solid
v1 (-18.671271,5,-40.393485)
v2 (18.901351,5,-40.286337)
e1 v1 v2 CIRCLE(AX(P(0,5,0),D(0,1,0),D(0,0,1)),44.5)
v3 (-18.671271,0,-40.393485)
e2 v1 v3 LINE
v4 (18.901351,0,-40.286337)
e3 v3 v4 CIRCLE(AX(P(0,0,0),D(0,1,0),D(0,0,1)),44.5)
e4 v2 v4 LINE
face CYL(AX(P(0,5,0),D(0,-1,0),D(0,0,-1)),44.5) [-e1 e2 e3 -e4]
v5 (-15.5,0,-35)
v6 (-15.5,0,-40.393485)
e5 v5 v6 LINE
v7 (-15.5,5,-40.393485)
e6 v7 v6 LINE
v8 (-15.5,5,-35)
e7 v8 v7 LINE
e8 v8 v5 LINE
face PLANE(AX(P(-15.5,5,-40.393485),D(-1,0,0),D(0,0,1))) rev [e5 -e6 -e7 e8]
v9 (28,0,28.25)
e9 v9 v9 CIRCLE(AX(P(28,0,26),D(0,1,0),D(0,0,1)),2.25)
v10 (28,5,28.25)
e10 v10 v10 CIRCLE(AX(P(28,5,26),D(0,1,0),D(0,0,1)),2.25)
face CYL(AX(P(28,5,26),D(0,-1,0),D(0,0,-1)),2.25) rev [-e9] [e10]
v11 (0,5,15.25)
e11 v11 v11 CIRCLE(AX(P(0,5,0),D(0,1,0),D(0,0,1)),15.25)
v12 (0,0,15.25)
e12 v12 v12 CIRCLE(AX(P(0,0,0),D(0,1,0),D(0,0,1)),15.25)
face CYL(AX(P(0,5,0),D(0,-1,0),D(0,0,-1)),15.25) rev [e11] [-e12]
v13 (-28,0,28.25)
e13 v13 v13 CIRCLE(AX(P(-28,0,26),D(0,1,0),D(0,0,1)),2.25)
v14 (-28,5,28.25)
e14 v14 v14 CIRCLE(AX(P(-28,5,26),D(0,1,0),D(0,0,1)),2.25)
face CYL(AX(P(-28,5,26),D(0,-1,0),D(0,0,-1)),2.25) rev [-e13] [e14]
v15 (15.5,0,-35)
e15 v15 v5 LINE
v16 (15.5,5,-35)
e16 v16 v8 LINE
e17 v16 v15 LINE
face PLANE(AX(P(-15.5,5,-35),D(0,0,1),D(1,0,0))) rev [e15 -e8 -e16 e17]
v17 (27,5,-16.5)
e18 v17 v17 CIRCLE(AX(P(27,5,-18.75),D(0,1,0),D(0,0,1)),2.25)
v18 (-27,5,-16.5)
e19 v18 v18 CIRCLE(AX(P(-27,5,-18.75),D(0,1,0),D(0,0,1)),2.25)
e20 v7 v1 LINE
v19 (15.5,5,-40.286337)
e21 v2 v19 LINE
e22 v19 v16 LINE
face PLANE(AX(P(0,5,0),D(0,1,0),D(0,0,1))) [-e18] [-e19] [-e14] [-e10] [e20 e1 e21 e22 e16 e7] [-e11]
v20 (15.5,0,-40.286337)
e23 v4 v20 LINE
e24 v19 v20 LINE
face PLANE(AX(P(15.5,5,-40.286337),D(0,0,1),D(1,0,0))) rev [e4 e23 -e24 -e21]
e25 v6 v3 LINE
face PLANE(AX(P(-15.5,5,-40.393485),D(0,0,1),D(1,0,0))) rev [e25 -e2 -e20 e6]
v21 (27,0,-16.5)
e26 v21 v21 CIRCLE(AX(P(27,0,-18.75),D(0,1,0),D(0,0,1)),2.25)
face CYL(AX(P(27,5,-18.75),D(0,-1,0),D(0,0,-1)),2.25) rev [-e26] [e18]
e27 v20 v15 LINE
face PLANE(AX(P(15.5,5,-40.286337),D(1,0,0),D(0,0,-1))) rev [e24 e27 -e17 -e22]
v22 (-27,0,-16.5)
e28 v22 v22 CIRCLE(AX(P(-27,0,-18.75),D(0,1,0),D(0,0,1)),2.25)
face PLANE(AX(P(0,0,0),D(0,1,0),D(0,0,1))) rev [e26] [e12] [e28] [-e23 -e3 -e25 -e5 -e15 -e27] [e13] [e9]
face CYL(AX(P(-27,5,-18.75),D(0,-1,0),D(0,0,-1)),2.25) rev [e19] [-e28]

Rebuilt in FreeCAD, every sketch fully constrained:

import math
import FreeCAD as App
import Part
import Sketcher

doc = App.newDocument("Part")
body = doc.addObject("PartDesign::Body", "Body")

sketch1 = doc.addObject("Sketcher::SketchObject", "Sketch")
body.addObject(sketch1)
sketch1.AttachmentSupport = (doc.XZ_Plane, [""])
sketch1.MapMode = "FlatFace"
sketch1.addGeometry(Part.LineSegment(App.Vector(15.5, -35, 0), App.Vector(-15.5, -35, 0)), False)
sketch1.addGeometry(Part.LineSegment(App.Vector(-15.5, -35, 0), App.Vector(-15.5, -40.4, 0)), False)
sketch1.addGeometry(Part.LineSegment(App.Vector(-15.5, -40.4, 0), App.Vector(-18.7, -40.4, 0)), False)
sketch1.addGeometry(Part.ArcOfCircle(Part.Circle(App.Vector(0, 0, 0), App.Vector(0, 0, 1), 44.5), math.radians(-65), math.radians(245)), False)
sketch1.addGeometry(Part.LineSegment(App.Vector(18.9, -40.3, 0), App.Vector(15.5, -40.3, 0)), False)
sketch1.addGeometry(Part.LineSegment(App.Vector(15.5, -40.3, 0), App.Vector(15.5, -35, 0)), False)
sketch1.addGeometry(Part.Circle(App.Vector(28, 26, 0), App.Vector(0, 0, 1), 2.2), False)
sketch1.addGeometry(Part.Circle(App.Vector(-28, 26, 0), App.Vector(0, 0, 1), 2.2), False)
sketch1.addGeometry(Part.Circle(App.Vector(27, -18.8, 0), App.Vector(0, 0, 1), 2.2), False)
sketch1.addGeometry(Part.Circle(App.Vector(0, 0, 0), App.Vector(0, 0, 1), 15.2), False)
sketch1.addGeometry(Part.Circle(App.Vector(-27, -18.8, 0), App.Vector(0, 0, 1), 2.2), False)
sketch1.addConstraint(Sketcher.Constraint("Coincident", 0, 2, 1, 1))
sketch1.addConstraint(Sketcher.Constraint("Coincident", 1, 2, 2, 1))
sketch1.addConstraint(Sketcher.Constraint("Coincident", 2, 2, 3, 2))
sketch1.addConstraint(Sketcher.Constraint("Coincident", 3, 1, 4, 1))
sketch1.addConstraint(Sketcher.Constraint("Coincident", 4, 2, 5, 1))
sketch1.addConstraint(Sketcher.Constraint("Coincident", 5, 2, 0, 1))
sketch1.addConstraint(Sketcher.Constraint("Horizontal", 0))
sketch1.addConstraint(Sketcher.Constraint("Vertical", 1))
sketch1.addConstraint(Sketcher.Constraint("Horizontal", 2))
sketch1.addConstraint(Sketcher.Constraint("Horizontal", 4))
sketch1.addConstraint(Sketcher.Constraint("Vertical", 5))
sketch1.addConstraint(Sketcher.Constraint("Coincident", 3, 3, -1, 1))
sketch1.addConstraint(Sketcher.Constraint("Coincident", 9, 3, -1, 1))
sketch1.addConstraint(Sketcher.Constraint("Equal", 6, 7))
sketch1.addConstraint(Sketcher.Constraint("Equal", 7, 8))
sketch1.addConstraint(Sketcher.Constraint("Equal", 8, 10))
sketch1.addConstraint(Sketcher.Constraint("Symmetric", 6, 3, 7, 3, -2))
sketch1.addConstraint(Sketcher.Constraint("Symmetric", 8, 3, 10, 3, -2))
sketch1.addConstraint(Sketcher.Constraint("Diameter", 6, 4.5))
sketch1.addConstraint(Sketcher.Constraint("Diameter", 9, 30.5))
sketch1.addConstraint(Sketcher.Constraint("Radius", 3, 44.5))
sketch1.addConstraint(Sketcher.Constraint("DistanceX", 0, 2, 0, 1, 31.0))
sketch1.addConstraint(Sketcher.Constraint("DistanceX", -1, 1, 6, 3, 28.0))
sketch1.addConstraint(Sketcher.Constraint("DistanceY", -1, 1, 6, 3, 26.0))
sketch1.addConstraint(Sketcher.Constraint("DistanceX", -1, 1, 8, 3, 27.0))
sketch1.addConstraint(Sketcher.Constraint("DistanceY", 0, 2, -1, 1, 35.0))
sketch1.addConstraint(Sketcher.Constraint("DistanceX", 0, 2, -1, 1, 15.5))
sketch1.addConstraint(Sketcher.Constraint("DistanceY", 8, 3, -1, 1, 18.75))
sketch1.addConstraint(Sketcher.Constraint("DistanceX", 2, 2, 2, 1, 3.171271))
sketch1.addConstraint(Sketcher.Constraint("DistanceX", 4, 2, 4, 1, 3.401351))
pad1 = doc.addObject("PartDesign::Pad", "Pad")
body.addObject(pad1)
pad1.Profile = sketch1
pad1.Length = 5
pad1.Reversed = True

doc.recompute()
